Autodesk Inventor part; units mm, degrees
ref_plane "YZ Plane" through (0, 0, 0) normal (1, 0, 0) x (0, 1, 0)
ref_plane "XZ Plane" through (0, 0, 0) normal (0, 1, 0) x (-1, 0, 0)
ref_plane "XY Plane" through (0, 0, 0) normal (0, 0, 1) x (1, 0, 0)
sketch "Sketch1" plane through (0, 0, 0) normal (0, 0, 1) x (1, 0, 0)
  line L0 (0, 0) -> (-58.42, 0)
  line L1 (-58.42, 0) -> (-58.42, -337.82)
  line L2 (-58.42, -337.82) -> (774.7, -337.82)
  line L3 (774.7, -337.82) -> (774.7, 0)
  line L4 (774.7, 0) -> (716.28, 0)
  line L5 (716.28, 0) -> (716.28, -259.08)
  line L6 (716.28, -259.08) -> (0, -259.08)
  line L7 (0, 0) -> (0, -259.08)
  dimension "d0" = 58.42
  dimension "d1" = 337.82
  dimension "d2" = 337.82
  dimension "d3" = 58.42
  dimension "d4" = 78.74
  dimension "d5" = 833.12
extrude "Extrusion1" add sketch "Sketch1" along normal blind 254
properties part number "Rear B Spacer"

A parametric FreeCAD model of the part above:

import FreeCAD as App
import Part
import Sketcher
from FreeCAD import Vector
Q = App.Units.Quantity


def add_polygon(sketch, points):
    """Adds a closed chain of lines whose ends are joined by coincident constraints."""
    first, n = sketch.GeometryCount, len(points)
    for a, b in zip(points, points[1:] + points[:1]):
        sketch.addGeometry(Part.LineSegment(App.Vector(*a, 0), App.Vector(*b, 0)), False)
    for i in range(n):
        sketch.addConstraint(Sketcher.Constraint("Coincident", first + i, 2, first + (i + 1) % n, 1))

doc = App.newDocument("Part")
params = doc.addObject("Spreadsheet::Sheet", "Params")
for row, (alias, value) in enumerate([
    ("sketch1_width", "2.3 in"),
    ("sketch1_width2", "32.8 in"),
    ("sketch1_height", "13.3 in"),
    ("pad1_length", "10 in"),
], start=1):
    params.set(f"A{row}", alias)
    params.set(f"B{row}", "=" + value)
    params.setAlias(f"B{row}", alias)

body = doc.addObject("PartDesign::Body", "Body")

sketch1 = doc.addObject("Sketcher::SketchObject", "Sketch")
body.addObject(sketch1)
sketch1.AttachmentSupport = (doc.XY_Plane, [""])
sketch1.MapMode = "FlatFace"
add_polygon(sketch1, [(0, -259.08), (0, 0), (-58.42, 0), (-58.42, -337.82), (774.7, -337.82), (774.7, 0), (716.28, 0), (716.28, -259.08)])
sketch1.addConstraint([
    Sketcher.Constraint("Vertical", 0),
    Sketcher.Constraint("Horizontal", 1),
    Sketcher.Constraint("Vertical", 2),
    Sketcher.Constraint("Horizontal", 3),
    Sketcher.Constraint("Vertical", 4),
    Sketcher.Constraint("Horizontal", 5),
    Sketcher.Constraint("Vertical", 6),
    Sketcher.Constraint("Horizontal", 7),
    Sketcher.Constraint("Coincident", 0, 2, -1, 1),
    Sketcher.Constraint("PointOnObject", 4, 2, -1),
    Sketcher.Constraint("Equal", 1, 5),
    Sketcher.Constraint("DistanceX", 1, 2, 1, 1, Q("2.3 in")),
    Sketcher.Constraint("DistanceX", 3, 1, 3, 2, Q("32.8 in")),
    Sketcher.Constraint("DistanceY", 2, 2, 2, 1, Q("13.3 in")),
    Sketcher.Constraint("DistanceY", 3, 2, 6, 2, Q("3.1 in")),
])
sketch1.setExpression("Constraints[19]", "Params.sketch1_width")
sketch1.setExpression("Constraints[20]", "Params.sketch1_width2")
sketch1.setExpression("Constraints[21]", "Params.sketch1_height")
pad1 = doc.addObject("PartDesign::Pad", "Pad")
body.addObject(pad1)
pad1.Profile = sketch1
pad1.setExpression("Length", "Params.pad1_length")

doc.recompute()
